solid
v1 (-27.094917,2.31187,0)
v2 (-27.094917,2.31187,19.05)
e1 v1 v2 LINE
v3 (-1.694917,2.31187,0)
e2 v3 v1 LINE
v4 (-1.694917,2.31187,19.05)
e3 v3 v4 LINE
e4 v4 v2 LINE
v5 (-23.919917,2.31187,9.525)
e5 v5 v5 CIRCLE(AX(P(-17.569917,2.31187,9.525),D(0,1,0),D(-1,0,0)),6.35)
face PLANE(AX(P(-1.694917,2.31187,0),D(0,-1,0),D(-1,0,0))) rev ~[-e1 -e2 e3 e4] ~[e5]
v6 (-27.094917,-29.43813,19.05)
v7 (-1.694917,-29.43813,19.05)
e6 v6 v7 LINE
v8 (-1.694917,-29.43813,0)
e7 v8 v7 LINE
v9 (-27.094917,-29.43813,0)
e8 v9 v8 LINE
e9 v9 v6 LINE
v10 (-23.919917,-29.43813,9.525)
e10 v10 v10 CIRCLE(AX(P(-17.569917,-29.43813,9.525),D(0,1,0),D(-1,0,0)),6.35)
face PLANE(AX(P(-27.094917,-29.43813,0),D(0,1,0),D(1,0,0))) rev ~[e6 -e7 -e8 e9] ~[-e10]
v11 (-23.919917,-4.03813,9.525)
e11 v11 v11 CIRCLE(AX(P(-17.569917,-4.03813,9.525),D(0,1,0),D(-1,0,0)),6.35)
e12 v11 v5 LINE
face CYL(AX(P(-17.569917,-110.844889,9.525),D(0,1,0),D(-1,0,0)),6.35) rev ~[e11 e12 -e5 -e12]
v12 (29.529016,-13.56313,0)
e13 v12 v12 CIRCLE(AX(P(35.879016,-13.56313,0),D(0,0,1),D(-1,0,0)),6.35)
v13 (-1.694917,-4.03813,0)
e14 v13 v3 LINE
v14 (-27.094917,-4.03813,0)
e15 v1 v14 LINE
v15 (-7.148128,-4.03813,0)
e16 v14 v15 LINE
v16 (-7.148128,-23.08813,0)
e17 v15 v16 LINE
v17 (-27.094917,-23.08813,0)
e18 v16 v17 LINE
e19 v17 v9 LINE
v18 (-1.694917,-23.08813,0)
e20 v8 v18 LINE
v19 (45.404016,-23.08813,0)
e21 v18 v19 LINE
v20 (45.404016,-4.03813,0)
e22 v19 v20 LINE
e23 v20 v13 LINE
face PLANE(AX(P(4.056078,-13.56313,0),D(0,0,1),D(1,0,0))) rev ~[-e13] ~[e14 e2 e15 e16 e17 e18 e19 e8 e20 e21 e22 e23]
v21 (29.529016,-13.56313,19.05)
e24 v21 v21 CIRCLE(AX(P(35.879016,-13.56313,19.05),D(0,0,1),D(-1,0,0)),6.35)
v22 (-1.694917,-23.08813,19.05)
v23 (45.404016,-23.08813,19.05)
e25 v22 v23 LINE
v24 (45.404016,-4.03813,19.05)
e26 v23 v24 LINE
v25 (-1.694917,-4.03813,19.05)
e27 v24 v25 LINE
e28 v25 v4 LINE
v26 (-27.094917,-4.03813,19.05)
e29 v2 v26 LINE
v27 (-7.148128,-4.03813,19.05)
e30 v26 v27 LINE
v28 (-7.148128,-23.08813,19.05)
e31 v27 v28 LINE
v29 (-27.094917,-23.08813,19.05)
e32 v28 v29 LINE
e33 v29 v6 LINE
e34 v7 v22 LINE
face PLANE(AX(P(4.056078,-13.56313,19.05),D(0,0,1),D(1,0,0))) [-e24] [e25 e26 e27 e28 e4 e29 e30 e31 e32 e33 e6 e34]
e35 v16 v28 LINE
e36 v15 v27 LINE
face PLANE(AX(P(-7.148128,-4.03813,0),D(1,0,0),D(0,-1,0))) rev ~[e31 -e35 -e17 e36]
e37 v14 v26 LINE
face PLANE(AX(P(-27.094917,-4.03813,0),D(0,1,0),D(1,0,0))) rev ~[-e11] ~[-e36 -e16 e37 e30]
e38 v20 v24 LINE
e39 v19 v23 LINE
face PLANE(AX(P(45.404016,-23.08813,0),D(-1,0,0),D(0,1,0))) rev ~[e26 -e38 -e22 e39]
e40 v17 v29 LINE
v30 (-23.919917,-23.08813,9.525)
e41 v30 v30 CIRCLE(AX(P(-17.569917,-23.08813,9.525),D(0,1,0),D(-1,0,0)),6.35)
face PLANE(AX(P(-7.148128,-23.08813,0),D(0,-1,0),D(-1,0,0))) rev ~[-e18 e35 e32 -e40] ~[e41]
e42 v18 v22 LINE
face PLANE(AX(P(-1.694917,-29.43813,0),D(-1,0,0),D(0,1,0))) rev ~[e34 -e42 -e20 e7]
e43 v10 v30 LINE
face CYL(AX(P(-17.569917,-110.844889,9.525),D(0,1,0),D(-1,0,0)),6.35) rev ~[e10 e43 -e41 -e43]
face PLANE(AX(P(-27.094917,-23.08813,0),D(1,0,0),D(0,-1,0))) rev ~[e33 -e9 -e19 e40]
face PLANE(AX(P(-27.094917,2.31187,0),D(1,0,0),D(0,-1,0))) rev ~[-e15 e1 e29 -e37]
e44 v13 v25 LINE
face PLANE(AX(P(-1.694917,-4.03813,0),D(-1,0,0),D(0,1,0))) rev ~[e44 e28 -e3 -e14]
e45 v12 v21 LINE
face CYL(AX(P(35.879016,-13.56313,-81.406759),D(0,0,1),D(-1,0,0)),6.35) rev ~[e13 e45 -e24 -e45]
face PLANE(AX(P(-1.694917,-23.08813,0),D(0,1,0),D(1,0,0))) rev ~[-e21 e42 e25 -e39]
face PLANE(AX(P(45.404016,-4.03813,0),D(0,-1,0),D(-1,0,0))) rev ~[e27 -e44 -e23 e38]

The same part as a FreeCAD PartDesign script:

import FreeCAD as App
import Part
import Sketcher

V = App.Vector
Q = App.Units.Quantity


def add_polygon(sketch, points):
    """Adds a closed chain of lines whose ends are joined by coincident constraints."""
    first, n = sketch.GeometryCount, len(points)
    for a, b in zip(points, points[1:] + points[:1]):
        sketch.addGeometry(Part.LineSegment(App.Vector(*a, 0), App.Vector(*b, 0)), False)
    for i in range(n):
        sketch.addConstraint(Sketcher.Constraint("Coincident", first + i, 2, first + (i + 1) % n, 1))

doc = App.newDocument("Part")
body = doc.addObject("PartDesign::Body", "Body")

# Sketch on XY plane
sketch1 = body.newObject("Sketcher::SketchObject", "Sketch")
sketch1.AttachmentSupport = (doc.getObject("XY_Plane"), [""])
sketch1.MapMode = "FlatFace"
add_polygon(sketch1, [(45, -4), (-2, -4), (-2, 2), (-27, 2), (-27, -4), (-7, -4), (-7, -23), (-27, -23), (-27, -29), (-2, -29), (-2, -23), (45, -23)])  # lines 0-11
sketch1.addConstraint(Sketcher.Constraint("Horizontal", 0))
sketch1.addConstraint(Sketcher.Constraint("Vertical", 1))
sketch1.addConstraint(Sketcher.Constraint("Horizontal", 2))
sketch1.addConstraint(Sketcher.Constraint("Vertical", 3))
sketch1.addConstraint(Sketcher.Constraint("Horizontal", 4))
sketch1.addConstraint(Sketcher.Constraint("Vertical", 5))
sketch1.addConstraint(Sketcher.Constraint("Horizontal", 6))
sketch1.addConstraint(Sketcher.Constraint("Vertical", 7))
sketch1.addConstraint(Sketcher.Constraint("Horizontal", 8))
sketch1.addConstraint(Sketcher.Constraint("Vertical", 9))
sketch1.addConstraint(Sketcher.Constraint("Horizontal", 10))
sketch1.addConstraint(Sketcher.Constraint("Vertical", 11))
sketch1.addConstraint(Sketcher.Constraint("Horizontal", 0, 2, 3, 2))
sketch1.addConstraint(Sketcher.Constraint("Horizontal", 6, 2, 9, 2))
sketch1.addConstraint(Sketcher.Constraint("Vertical", 3, 2, 6, 2))
sketch1.addConstraint(Sketcher.Constraint("Vertical", 1, 2, 8, 2))
sketch1.addConstraint(Sketcher.Constraint("Equal", 3, 7))
sketch1.addConstraint(Sketcher.Constraint("DistanceX", 2, 2, 2, 1, Q("1 in")))
sketch1.addConstraint(Sketcher.Constraint("DistanceY", 5, 2, 1, 2, Q("1 in")))
sketch1.addConstraint(Sketcher.Constraint("DistanceY", 1, 1, 1, 2, Q("0.25 in")))
sketch1.addConstraint(Sketcher.Constraint("DistanceX", 4, 1, 4, 2, 19.946789))
sketch1.addConstraint(Sketcher.Constraint("DistanceX", 0, 2, 0, 1, 47.098933))
sketch1.addConstraint(Sketcher.Constraint("DistanceY", 0, 2, -1, 1, 4.03813))
sketch1.addConstraint(Sketcher.Constraint("DistanceX", 4, 2, -1, 1, 7.148128))
pad1 = body.newObject("PartDesign::Pad", "Pad")
pad1.Profile = sketch1
pad1.Length = Q("0.75 in")

# Sketch on XZ plane
sketch2 = body.newObject("Sketcher::SketchObject", "Sketch001")
sketch2.AttachmentSupport = (doc.getObject("XZ_Plane"), [""])
sketch2.MapMode = "FlatFace"
sketch2.AttachmentOffset = App.Placement(V(0, 0, 29.43813), App.Rotation())
sketch2.addGeometry(Part.Circle(V(-18, 10, 0), V(0, 0, 1), 6), False)
sketch2.addConstraint(Sketcher.Constraint("Diameter", 0, Q("0.5 in")))
sketch2.addConstraint(Sketcher.Constraint("DistanceY", -1, 1, 0, 3, Q("0.375 in")))
sketch2.addConstraint(Sketcher.Constraint("DistanceX", 0, 3, -1, 1, 17.569917))
doc.recompute()
hole = body.newObject("PartDesign::Hole", "Hole")
hole.Profile = sketch2
hole.ThreadType = "None"
hole.Diameter = Q("0.5 in")
hole.DepthType = "ThroughAll"

# Sketch on XY plane
sketch3 = body.newObject("Sketcher::SketchObject", "Sketch002")
sketch3.AttachmentSupport = (doc.getObject("XY_Plane"), [""])
sketch3.MapMode = "FlatFace"
sketch3.addGeometry(Part.Circle(V(36, -14, 0), V(0, 0, 1), 6), False)
sketch3.addConstraint(Sketcher.Constraint("Diameter", 0, Q("0.5 in")))
sketch3.addConstraint(Sketcher.Constraint("DistanceY", 0, 3, -1, 1, 13.56313))
sketch3.addConstraint(Sketcher.Constraint("DistanceX", -1, 1, 0, 3, 35.879016))
doc.recompute()
hole2 = body.newObject("PartDesign::Hole", "Hole001")
hole2.Profile = sketch3
hole2.ThreadType = "None"
hole2.Diameter = Q("0.5 in")
hole2.DepthType = "ThroughAll"
hole2.Reversed = True

doc.recompute()
